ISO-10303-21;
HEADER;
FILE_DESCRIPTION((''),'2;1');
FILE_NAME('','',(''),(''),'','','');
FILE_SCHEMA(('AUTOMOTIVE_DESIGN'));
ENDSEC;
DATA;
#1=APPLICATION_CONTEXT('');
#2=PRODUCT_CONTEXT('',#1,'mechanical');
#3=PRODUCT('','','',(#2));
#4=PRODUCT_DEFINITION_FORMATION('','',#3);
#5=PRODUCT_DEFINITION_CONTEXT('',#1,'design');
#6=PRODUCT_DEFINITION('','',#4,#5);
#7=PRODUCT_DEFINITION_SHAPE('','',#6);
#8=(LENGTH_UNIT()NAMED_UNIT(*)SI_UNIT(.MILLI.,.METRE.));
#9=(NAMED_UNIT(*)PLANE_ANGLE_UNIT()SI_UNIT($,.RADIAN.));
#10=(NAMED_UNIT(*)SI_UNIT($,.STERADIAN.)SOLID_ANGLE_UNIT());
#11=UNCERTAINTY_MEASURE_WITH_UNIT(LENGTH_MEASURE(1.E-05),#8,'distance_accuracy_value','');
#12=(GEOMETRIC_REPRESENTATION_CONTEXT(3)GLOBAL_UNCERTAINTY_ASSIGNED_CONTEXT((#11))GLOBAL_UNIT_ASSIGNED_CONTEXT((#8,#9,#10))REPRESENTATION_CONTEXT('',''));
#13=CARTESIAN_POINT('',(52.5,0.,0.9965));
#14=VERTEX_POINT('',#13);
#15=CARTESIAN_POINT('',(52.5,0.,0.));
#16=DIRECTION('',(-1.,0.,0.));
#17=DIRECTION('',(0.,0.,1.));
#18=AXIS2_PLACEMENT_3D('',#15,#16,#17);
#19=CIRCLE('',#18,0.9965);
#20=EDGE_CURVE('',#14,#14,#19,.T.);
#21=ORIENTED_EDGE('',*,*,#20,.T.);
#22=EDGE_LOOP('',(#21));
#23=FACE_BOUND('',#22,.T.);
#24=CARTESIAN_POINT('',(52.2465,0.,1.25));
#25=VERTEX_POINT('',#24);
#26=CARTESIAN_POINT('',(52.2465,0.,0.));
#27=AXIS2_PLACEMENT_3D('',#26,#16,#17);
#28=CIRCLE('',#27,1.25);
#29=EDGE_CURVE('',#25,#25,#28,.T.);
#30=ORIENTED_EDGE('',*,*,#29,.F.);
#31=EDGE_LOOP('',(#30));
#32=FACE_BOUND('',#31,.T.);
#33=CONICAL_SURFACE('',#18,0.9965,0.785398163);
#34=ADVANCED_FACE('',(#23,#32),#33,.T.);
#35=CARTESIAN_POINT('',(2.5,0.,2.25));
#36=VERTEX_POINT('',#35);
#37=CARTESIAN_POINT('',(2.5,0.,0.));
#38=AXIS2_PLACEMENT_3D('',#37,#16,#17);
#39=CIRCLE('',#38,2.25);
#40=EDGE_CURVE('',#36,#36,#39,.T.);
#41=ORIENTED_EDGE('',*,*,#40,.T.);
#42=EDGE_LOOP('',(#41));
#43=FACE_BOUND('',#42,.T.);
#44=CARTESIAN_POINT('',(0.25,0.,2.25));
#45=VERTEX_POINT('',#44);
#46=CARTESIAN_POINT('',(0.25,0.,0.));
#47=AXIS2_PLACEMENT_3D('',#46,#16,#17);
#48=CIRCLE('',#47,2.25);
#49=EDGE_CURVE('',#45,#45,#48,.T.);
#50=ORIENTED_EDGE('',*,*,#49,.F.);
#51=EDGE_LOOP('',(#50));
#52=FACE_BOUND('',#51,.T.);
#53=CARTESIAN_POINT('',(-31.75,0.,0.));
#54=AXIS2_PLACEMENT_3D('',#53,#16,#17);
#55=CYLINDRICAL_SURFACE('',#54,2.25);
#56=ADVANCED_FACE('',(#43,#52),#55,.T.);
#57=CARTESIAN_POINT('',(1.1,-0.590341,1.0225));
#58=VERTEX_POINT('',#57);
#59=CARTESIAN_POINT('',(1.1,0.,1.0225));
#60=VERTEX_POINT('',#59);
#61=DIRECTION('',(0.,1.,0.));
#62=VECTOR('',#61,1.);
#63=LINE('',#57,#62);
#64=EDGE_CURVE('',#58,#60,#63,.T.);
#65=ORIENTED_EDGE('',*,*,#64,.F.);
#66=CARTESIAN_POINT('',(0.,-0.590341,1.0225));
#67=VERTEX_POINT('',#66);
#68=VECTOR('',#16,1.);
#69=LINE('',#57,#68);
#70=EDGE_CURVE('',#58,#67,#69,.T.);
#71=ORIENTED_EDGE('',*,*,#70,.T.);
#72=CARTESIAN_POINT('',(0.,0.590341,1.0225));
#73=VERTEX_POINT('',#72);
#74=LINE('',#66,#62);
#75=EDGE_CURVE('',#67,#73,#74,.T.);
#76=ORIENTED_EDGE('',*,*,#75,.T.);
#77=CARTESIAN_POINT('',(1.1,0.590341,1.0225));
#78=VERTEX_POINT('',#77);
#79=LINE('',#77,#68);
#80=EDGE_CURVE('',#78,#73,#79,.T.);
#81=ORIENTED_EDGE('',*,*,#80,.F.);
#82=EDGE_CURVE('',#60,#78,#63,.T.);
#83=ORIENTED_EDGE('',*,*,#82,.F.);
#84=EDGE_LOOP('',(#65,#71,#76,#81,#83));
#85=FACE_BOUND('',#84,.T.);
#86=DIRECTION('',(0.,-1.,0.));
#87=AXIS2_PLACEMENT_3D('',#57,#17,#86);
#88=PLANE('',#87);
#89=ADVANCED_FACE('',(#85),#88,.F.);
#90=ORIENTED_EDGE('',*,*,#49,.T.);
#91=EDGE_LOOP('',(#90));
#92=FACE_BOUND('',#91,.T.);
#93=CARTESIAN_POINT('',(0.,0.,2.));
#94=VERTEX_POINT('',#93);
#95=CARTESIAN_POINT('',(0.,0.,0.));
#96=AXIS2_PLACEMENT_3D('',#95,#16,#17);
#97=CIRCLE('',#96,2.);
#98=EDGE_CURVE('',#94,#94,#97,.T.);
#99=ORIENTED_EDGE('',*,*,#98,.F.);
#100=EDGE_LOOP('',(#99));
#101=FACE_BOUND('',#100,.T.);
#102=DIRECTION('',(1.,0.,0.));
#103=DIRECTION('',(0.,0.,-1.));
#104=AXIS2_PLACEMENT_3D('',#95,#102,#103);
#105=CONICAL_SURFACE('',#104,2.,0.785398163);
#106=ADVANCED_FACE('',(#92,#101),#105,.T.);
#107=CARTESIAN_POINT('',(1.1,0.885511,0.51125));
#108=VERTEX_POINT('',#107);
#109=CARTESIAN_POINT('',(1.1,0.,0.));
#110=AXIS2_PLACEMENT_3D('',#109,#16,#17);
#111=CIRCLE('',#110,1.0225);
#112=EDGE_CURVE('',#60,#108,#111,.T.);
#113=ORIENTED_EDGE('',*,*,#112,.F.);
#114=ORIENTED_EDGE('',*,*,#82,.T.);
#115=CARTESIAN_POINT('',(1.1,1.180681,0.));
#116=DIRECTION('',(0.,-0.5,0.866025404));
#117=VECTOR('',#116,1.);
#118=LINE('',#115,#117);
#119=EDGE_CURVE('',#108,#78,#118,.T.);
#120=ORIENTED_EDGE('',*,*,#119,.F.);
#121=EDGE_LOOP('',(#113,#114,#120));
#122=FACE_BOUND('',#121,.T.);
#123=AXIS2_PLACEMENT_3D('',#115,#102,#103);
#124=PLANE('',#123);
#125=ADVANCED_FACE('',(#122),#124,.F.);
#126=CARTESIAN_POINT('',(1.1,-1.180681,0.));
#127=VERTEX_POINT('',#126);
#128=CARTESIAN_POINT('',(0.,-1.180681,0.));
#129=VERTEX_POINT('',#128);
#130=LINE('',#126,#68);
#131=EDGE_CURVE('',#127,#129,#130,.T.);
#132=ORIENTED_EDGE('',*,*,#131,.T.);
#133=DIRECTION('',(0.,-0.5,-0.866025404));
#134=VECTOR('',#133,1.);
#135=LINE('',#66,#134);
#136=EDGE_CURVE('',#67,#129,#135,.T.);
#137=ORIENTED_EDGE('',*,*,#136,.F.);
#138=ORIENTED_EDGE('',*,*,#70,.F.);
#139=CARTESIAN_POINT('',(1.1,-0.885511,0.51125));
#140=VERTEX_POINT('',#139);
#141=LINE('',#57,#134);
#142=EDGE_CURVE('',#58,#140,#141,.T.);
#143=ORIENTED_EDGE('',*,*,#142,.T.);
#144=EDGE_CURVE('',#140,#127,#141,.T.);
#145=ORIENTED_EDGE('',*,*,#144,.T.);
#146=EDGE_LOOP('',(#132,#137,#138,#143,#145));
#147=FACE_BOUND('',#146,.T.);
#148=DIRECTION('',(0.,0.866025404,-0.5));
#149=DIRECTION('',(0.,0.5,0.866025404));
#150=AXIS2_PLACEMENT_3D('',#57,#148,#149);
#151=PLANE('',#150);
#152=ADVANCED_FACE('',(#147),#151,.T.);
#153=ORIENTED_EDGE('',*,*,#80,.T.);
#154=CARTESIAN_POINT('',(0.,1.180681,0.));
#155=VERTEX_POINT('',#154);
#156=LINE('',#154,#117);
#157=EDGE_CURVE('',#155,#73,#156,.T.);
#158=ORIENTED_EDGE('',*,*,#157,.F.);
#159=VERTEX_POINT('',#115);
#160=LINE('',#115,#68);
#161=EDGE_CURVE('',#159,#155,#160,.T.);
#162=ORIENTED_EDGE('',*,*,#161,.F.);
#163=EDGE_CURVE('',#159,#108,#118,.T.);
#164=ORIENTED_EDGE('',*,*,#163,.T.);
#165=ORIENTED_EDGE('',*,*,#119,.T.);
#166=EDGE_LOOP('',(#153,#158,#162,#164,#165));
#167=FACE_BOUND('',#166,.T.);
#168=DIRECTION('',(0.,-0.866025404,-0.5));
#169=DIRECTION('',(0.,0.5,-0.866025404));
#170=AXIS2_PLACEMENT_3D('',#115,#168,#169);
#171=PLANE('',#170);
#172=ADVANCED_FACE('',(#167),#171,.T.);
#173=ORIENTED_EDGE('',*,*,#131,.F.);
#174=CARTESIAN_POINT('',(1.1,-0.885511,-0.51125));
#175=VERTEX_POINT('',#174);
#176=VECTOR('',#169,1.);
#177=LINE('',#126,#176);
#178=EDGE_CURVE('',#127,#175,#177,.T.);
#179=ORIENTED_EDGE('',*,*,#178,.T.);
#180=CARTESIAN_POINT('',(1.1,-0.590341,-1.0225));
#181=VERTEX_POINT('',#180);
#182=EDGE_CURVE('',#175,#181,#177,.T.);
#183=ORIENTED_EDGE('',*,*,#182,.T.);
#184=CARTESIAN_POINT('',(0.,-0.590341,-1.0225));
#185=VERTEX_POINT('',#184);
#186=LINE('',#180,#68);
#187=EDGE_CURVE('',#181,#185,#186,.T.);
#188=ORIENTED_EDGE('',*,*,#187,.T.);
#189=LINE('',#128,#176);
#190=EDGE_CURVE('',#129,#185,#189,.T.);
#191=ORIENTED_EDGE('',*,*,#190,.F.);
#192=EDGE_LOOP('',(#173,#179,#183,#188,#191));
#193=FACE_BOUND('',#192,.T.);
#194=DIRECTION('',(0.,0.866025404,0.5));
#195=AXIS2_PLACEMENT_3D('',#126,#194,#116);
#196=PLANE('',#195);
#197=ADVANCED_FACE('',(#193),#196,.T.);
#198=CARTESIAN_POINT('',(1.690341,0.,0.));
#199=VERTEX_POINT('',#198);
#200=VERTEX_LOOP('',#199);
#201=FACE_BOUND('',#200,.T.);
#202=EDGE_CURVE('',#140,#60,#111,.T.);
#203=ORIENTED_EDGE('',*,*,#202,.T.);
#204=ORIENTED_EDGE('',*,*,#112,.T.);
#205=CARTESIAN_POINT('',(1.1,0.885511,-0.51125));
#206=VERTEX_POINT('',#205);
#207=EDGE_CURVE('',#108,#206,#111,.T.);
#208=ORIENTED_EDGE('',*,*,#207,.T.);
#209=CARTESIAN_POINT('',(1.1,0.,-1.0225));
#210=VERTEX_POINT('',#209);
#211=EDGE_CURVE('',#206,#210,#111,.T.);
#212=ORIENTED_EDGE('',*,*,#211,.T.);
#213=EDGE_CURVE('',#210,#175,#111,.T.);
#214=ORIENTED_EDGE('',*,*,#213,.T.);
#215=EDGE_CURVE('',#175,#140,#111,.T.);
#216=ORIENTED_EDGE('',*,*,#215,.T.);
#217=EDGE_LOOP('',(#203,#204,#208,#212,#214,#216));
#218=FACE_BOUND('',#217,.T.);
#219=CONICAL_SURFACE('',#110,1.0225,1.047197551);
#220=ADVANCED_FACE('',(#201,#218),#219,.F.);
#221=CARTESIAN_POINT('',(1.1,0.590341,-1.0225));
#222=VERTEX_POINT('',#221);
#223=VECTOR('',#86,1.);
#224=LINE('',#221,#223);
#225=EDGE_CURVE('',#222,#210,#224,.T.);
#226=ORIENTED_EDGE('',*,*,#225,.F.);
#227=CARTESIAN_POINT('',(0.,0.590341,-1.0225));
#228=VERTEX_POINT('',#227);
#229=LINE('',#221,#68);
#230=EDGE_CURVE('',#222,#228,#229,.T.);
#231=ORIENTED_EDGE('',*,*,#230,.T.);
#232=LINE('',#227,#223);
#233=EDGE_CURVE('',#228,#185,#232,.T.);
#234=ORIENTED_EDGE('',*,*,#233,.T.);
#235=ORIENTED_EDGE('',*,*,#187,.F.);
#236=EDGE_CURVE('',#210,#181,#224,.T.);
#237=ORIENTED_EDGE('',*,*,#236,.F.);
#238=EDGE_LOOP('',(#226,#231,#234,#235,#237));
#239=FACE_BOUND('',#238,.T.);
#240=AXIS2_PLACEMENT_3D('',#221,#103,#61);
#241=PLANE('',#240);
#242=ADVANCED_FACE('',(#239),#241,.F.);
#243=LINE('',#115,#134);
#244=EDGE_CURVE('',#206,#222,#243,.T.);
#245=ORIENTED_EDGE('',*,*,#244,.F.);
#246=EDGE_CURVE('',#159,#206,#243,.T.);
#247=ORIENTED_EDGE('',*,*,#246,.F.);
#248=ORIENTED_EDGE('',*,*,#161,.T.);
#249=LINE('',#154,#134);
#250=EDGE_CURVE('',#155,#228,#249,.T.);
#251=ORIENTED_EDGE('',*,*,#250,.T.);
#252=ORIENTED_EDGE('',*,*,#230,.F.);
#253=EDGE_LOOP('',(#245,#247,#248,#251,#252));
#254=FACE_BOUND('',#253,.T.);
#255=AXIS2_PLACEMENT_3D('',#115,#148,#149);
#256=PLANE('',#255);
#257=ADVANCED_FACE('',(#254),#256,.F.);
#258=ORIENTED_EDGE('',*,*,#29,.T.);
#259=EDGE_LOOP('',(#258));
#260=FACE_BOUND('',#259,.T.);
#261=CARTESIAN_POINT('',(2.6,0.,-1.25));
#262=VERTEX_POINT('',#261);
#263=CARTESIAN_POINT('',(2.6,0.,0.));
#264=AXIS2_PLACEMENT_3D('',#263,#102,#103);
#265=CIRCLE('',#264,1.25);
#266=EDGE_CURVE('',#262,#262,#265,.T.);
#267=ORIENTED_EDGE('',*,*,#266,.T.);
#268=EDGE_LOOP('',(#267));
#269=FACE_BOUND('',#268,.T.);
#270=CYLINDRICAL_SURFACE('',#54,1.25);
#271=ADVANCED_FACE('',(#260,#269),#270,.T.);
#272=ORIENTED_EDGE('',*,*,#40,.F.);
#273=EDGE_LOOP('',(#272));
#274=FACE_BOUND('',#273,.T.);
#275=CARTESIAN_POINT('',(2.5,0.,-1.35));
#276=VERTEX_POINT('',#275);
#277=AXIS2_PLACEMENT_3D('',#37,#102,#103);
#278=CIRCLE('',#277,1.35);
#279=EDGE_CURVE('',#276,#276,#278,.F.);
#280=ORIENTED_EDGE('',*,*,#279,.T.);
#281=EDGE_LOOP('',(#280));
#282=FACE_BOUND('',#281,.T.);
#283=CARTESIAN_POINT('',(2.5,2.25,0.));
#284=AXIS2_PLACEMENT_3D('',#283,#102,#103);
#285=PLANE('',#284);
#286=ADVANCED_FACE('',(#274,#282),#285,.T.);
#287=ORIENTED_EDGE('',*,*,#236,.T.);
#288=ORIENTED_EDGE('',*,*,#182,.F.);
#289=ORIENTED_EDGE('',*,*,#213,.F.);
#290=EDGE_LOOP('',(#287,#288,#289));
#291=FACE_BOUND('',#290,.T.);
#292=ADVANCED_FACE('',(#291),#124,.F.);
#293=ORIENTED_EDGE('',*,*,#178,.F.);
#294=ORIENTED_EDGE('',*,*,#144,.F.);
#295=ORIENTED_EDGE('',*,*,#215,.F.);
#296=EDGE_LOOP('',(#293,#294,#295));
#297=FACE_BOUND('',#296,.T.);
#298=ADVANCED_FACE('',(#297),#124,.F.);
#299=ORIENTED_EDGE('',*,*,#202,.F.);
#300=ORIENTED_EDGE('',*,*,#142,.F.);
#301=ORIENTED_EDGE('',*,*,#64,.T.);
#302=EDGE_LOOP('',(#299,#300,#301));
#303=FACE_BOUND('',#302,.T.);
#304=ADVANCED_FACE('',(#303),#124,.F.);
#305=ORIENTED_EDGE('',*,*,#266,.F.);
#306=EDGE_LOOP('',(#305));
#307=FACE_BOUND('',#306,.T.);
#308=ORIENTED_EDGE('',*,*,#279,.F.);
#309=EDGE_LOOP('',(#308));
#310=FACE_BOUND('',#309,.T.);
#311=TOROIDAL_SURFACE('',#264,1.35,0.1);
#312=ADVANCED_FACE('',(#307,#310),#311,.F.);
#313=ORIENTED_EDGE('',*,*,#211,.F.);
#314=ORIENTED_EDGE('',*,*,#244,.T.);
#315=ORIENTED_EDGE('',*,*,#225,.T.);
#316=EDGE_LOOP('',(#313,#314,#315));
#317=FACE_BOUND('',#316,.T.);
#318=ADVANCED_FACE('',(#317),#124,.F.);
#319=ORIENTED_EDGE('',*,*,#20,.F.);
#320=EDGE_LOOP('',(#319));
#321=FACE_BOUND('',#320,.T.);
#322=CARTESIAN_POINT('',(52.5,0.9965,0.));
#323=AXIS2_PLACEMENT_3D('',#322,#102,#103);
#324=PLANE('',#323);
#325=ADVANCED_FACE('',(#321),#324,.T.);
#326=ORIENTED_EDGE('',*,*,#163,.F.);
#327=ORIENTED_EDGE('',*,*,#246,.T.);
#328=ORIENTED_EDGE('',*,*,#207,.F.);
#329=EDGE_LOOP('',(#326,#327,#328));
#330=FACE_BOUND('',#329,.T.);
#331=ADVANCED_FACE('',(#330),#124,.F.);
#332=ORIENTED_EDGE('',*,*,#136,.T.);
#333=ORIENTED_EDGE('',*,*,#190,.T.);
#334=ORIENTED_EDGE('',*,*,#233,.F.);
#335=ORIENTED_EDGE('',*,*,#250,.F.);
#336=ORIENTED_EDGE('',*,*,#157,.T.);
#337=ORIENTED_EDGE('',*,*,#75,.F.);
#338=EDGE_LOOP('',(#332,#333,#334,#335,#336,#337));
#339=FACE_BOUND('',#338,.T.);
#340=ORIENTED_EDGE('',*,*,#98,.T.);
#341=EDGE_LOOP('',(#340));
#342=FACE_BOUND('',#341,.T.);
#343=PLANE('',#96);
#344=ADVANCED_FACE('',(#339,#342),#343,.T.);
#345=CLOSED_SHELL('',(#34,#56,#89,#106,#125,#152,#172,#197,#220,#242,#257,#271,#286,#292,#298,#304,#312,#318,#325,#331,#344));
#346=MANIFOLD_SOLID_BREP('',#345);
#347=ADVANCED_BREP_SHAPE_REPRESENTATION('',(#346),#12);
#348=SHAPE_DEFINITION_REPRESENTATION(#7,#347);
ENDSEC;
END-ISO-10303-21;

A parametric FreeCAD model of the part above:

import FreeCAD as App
import Part
import Sketcher
Q = App.Units.Quantity


def edges_at(feature, points):
    """Names of the edges that pass closest to the given points."""
    edges = feature.Shape.Edges
    near = lambda p: min(range(len(edges)), key=lambda i: edges[i].distToShape(Part.Vertex(*p))[0])
    return sorted({f"Edge{near(p) + 1}" for p in points})

doc = App.newDocument("Part")
body = doc.addObject("PartDesign::Body", "Body")

# Sketch on XY plane
sketch1 = body.newObject("Sketcher::SketchObject", "Sketch")
sketch1.AttachmentSupport = (doc.getObject("XY_Plane"), [""])
sketch1.MapMode = "FlatFace"
sketch1.addGeometry([
    Part.LineSegment(App.Vector(0, 2, 0), App.Vector(0, 0, 0)),  # 0
    Part.LineSegment(App.Vector(0, 0, 0), App.Vector(52.5, 0, 0)),  # 1
    Part.LineSegment(App.Vector(52.5, 0, 0), App.Vector(52.5, 1, 0)),  # 2
    Part.LineSegment(App.Vector(52.5, 1, 0), App.Vector(52.25, 1.25, 0)),  # 3
    Part.LineSegment(App.Vector(52.25, 1.25, 0), App.Vector(2.5, 1.25, 0)),  # 4
    Part.LineSegment(App.Vector(2.5, 1.25, 0), App.Vector(2.5, 2.25, 0)),  # 5
    Part.LineSegment(App.Vector(2.5, 2.25, 0), App.Vector(0.25, 2.25, 0)),  # 6
    Part.LineSegment(App.Vector(0.25, 2.25, 0), App.Vector(0, 2, 0)),  # 7
], False)
sketch1.addConstraint([
    Sketcher.Constraint("Coincident", 0, 2, 1, 1),
    Sketcher.Constraint("Coincident", 1, 2, 2, 1),
    Sketcher.Constraint("Coincident", 2, 2, 3, 1),
    Sketcher.Constraint("Coincident", 3, 2, 4, 1),
    Sketcher.Constraint("Coincident", 4, 2, 5, 1),
    Sketcher.Constraint("Coincident", 5, 2, 6, 1),
    Sketcher.Constraint("Coincident", 6, 2, 7, 1),
    Sketcher.Constraint("Coincident", 7, 2, 0, 1),
    Sketcher.Constraint("Vertical", 0),
    Sketcher.Constraint("Horizontal", 1),
    Sketcher.Constraint("Vertical", 2),
    Sketcher.Constraint("Horizontal", 4),
    Sketcher.Constraint("Vertical", 5),
    Sketcher.Constraint("Horizontal", 6),
    Sketcher.Constraint("Coincident", 0, 2, -1, 1),
    Sketcher.Constraint("Perpendicular", 3, 7),
    Sketcher.Constraint("DistanceY", 0, 2, 0, 1, 2.0),
    Sketcher.Constraint("DistanceY", 5, 1, 5, 2, 1.0),
    Sketcher.Constraint("Angle", 3, Q("135 deg")),
    Sketcher.Constraint("DistanceX", 1, 1, 1, 2, 52.5),
    Sketcher.Constraint("DistanceX", 4, 2, 2, 2, 50.0),
    Sketcher.Constraint("DistanceX", 6, 2, 6, 1, 2.25),
    Sketcher.Constraint("DistanceX", 4, 2, 4, 1, 49.7465),
])
revolution = body.newObject("PartDesign::Revolution", "Revolution")
revolution.Profile = sketch1
revolution.ReferenceAxis = (sketch1, ["H_Axis"])
revolution.Angle = 360
doc.recompute()

fillet = body.newObject("PartDesign::Fillet", "Fillet")
fillet.Base = (revolution, edges_at(revolution, [(2.5, 0, -1.25)]))
fillet.Radius = 0.1

# Sketch on XY plane
sketch2 = body.newObject("Sketcher::SketchObject", "Sketch001")
sketch2.AttachmentSupport = (doc.getObject("XY_Plane"), [""])
sketch2.MapMode = "FlatFace"
sketch2.addGeometry([
    Part.LineSegment(App.Vector(1.1, 1, 0), App.Vector(0, 1, 0)),
    Part.LineSegment(App.Vector(0, 1, 0), App.Vector(0, 0, 0)),
    Part.LineSegment(App.Vector(0, 0, 0), App.Vector(1.7, 0, 0)),
    Part.LineSegment(App.Vector(1.7, 0, 0), App.Vector(1.1, 1, 0)),
], False)
sketch2.addConstraint([
    Sketcher.Constraint("Coincident", 0, 2, 1, 1),
    Sketcher.Constraint("Coincident", 1, 2, 2, 1),
    Sketcher.Constraint("Coincident", 2, 2, 3, 1),
    Sketcher.Constraint("Coincident", 3, 2, 0, 1),
    Sketcher.Constraint("Horizontal", 0),
    Sketcher.Constraint("Vertical", 1),
    Sketcher.Constraint("Horizontal", 2),
    Sketcher.Constraint("Coincident", 1, 2, -1, 1),
    Sketcher.Constraint("Angle", 3, Q("120 deg")),
    Sketcher.Constraint("DistanceX", 0, 2, 0, 1, 1.1),
    Sketcher.Constraint("DistanceY", 1, 2, 1, 1, 1.0225),
])
groove = body.newObject("PartDesign::Groove", "Groove")
groove.Profile = sketch2
groove.ReferenceAxis = (sketch2, ["H_Axis"])
groove.Angle = 360

# Sketch on YZ plane
sketch3 = body.newObject("Sketcher::SketchObject", "Sketch002")
sketch3.AttachmentSupport = (doc.getObject("YZ_Plane"), [""])
sketch3.MapMode = "FlatFace"
sketch3.addGeometry([
    Part.LineSegment(App.Vector(1.2, 0, 0), App.Vector(0.6, -1, 0)),  # 0
    Part.LineSegment(App.Vector(0.6, -1, 0), App.Vector(-0.6, -1, 0)),  # 1
    Part.LineSegment(App.Vector(-0.6, -1, 0), App.Vector(-1.2, 0, 0)),  # 2
    Part.LineSegment(App.Vector(-1.2, 0, 0), App.Vector(-0.6, 1, 0)),  # 3
    Part.LineSegment(App.Vector(-0.6, 1, 0), App.Vector(0.6, 1, 0)),  # 4
    Part.LineSegment(App.Vector(0.6, 1, 0), App.Vector(1.2, 0, 0)),  # 5
], False)
sketch3.addConstraint([
    Sketcher.Constraint("Coincident", 0, 2, 1, 1),
    Sketcher.Constraint("Coincident", 1, 2, 2, 1),
    Sketcher.Constraint("Coincident", 2, 2, 3, 1),
    Sketcher.Constraint("Coincident", 3, 2, 4, 1),
    Sketcher.Constraint("Coincident", 4, 2, 5, 1),
    Sketcher.Constraint("Coincident", 5, 2, 0, 1),
    Sketcher.Constraint("Horizontal", 1),
    Sketcher.Constraint("Horizontal", 4),
    Sketcher.Constraint("Symmetric", 0, 2, 3, 2, -1, 1),
    Sketcher.Constraint("Symmetric", 2, 2, 5, 2, -1, 1),
    Sketcher.Constraint("PointOnObject", 2, 2, -1),
    Sketcher.Constraint("Parallel", 2, 5),
    Sketcher.Constraint("Vertical", 1, 2, 3, 2),
    Sketcher.Constraint("Angle", 0, Q("-120 deg")),
    Sketcher.Constraint("DistanceY", 1, 2, 3, 2, 2.045),
    Sketcher.Constraint("DistanceX", 1, 2, 1, 1, 1.180681),
])
pocket1 = body.newObject("PartDesign::Pocket", "Pocket")
pocket1.Profile = sketch3
pocket1.Length = 1.1
pocket1.Reversed = True

doc.recompute()
